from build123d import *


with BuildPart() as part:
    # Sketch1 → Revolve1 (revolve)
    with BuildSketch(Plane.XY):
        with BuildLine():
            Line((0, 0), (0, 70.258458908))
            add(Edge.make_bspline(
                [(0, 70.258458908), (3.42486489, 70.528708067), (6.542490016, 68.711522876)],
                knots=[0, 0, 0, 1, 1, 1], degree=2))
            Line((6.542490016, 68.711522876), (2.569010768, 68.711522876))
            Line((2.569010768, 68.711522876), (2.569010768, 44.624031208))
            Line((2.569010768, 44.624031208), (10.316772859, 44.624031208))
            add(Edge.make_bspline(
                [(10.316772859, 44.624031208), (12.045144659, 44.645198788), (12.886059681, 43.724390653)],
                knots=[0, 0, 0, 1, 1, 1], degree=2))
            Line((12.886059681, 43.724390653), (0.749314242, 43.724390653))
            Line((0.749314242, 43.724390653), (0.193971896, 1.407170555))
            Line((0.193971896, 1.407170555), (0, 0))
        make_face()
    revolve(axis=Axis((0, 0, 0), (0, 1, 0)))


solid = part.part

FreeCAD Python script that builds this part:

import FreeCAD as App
import Part
import Sketcher
from FreeCAD import Vector

doc = App.newDocument("Part")
body = doc.addObject("PartDesign::Body", "Body")

sketch1 = body.newObject("Sketcher::SketchObject", "Sketch")
sketch1.AttachmentSupport = (doc.getObject("XY_Plane"), [""])
sketch1.MapMode = "FlatFace"
sketch1.addGeometry([
    Part.LineSegment(Vector(0, 70.258459, 0), Vector(0, 0, 0)),
    Part.LineSegment(Vector(0, 0, 0), Vector(0.193972, 1.407171, 0)),
    Part.LineSegment(Vector(0.193972, 1.407171, 0), Vector(0.749314, 43.724391, 0)),
    Part.LineSegment(Vector(0.749314, 43.724391, 0), Vector(12.88606, 43.724391, 0)),
    Part.BSplineCurve([Vector(10.316773, 44.624031, 0), Vector(12.045145, 44.645199, 0), Vector(12.88606, 43.724391, 0)], [3, 3], [0, 1], False, 2, [1, 1, 1], False),
    Part.LineSegment(Vector(10.316773, 44.624031, 0), Vector(2.569011, 44.624031, 0)),
    Part.LineSegment(Vector(2.569011, 44.624031, 0), Vector(2.569011, 68.711523, 0)),
    Part.LineSegment(Vector(2.569011, 68.711523, 0), Vector(6.54249, 68.711523, 0)),
    Part.BSplineCurve([Vector(0, 70.258459, 0), Vector(3.424865, 70.528708, 0), Vector(6.54249, 68.711523, 0)], [3, 3], [0, 1], False, 2, [1, 1, 1], False),
], False)
sketch1.addConstraint([
    Sketcher.Constraint("Block", 4),
    Sketcher.Constraint("Block", 8),
    Sketcher.Constraint("Coincident", 0, 2, 1, 1),
    Sketcher.Constraint("Coincident", 1, 2, 2, 1),
    Sketcher.Constraint("Coincident", 2, 2, 3, 1),
    Sketcher.Constraint("Coincident", 3, 2, 4, 2),
    Sketcher.Constraint("Coincident", 4, 1, 5, 1),
    Sketcher.Constraint("Coincident", 5, 2, 6, 1),
    Sketcher.Constraint("Coincident", 6, 2, 7, 1),
    Sketcher.Constraint("Coincident", 7, 2, 8, 2),
    Sketcher.Constraint("Coincident", 8, 1, 0, 1),
    Sketcher.Constraint("Vertical", 0),
    Sketcher.Constraint("Horizontal", 3),
    Sketcher.Constraint("Horizontal", 5),
    Sketcher.Constraint("Vertical", 6),
    Sketcher.Constraint("Horizontal", 7),
    Sketcher.Constraint("DistanceX", 7, 1, 7, 2, 3.973479),
    Sketcher.Constraint("DistanceY", 0, 2, 0, 1, 70.258459),
    Sketcher.Constraint("DistanceX", 3, 1, 3, 2, 12.136745),
    Sketcher.Constraint("DistanceX", -1, 1, 1, 2, 0.193972),
    Sketcher.Constraint("DistanceY", -1, 1, 1, 2, 1.407171),
])
revolution = body.newObject("PartDesign::Revolution", "Revolution")
revolution.Profile = sketch1
revolution.ReferenceAxis = (sketch1, ["V_Axis"])
revolution.Angle = 360

doc.recompute()
